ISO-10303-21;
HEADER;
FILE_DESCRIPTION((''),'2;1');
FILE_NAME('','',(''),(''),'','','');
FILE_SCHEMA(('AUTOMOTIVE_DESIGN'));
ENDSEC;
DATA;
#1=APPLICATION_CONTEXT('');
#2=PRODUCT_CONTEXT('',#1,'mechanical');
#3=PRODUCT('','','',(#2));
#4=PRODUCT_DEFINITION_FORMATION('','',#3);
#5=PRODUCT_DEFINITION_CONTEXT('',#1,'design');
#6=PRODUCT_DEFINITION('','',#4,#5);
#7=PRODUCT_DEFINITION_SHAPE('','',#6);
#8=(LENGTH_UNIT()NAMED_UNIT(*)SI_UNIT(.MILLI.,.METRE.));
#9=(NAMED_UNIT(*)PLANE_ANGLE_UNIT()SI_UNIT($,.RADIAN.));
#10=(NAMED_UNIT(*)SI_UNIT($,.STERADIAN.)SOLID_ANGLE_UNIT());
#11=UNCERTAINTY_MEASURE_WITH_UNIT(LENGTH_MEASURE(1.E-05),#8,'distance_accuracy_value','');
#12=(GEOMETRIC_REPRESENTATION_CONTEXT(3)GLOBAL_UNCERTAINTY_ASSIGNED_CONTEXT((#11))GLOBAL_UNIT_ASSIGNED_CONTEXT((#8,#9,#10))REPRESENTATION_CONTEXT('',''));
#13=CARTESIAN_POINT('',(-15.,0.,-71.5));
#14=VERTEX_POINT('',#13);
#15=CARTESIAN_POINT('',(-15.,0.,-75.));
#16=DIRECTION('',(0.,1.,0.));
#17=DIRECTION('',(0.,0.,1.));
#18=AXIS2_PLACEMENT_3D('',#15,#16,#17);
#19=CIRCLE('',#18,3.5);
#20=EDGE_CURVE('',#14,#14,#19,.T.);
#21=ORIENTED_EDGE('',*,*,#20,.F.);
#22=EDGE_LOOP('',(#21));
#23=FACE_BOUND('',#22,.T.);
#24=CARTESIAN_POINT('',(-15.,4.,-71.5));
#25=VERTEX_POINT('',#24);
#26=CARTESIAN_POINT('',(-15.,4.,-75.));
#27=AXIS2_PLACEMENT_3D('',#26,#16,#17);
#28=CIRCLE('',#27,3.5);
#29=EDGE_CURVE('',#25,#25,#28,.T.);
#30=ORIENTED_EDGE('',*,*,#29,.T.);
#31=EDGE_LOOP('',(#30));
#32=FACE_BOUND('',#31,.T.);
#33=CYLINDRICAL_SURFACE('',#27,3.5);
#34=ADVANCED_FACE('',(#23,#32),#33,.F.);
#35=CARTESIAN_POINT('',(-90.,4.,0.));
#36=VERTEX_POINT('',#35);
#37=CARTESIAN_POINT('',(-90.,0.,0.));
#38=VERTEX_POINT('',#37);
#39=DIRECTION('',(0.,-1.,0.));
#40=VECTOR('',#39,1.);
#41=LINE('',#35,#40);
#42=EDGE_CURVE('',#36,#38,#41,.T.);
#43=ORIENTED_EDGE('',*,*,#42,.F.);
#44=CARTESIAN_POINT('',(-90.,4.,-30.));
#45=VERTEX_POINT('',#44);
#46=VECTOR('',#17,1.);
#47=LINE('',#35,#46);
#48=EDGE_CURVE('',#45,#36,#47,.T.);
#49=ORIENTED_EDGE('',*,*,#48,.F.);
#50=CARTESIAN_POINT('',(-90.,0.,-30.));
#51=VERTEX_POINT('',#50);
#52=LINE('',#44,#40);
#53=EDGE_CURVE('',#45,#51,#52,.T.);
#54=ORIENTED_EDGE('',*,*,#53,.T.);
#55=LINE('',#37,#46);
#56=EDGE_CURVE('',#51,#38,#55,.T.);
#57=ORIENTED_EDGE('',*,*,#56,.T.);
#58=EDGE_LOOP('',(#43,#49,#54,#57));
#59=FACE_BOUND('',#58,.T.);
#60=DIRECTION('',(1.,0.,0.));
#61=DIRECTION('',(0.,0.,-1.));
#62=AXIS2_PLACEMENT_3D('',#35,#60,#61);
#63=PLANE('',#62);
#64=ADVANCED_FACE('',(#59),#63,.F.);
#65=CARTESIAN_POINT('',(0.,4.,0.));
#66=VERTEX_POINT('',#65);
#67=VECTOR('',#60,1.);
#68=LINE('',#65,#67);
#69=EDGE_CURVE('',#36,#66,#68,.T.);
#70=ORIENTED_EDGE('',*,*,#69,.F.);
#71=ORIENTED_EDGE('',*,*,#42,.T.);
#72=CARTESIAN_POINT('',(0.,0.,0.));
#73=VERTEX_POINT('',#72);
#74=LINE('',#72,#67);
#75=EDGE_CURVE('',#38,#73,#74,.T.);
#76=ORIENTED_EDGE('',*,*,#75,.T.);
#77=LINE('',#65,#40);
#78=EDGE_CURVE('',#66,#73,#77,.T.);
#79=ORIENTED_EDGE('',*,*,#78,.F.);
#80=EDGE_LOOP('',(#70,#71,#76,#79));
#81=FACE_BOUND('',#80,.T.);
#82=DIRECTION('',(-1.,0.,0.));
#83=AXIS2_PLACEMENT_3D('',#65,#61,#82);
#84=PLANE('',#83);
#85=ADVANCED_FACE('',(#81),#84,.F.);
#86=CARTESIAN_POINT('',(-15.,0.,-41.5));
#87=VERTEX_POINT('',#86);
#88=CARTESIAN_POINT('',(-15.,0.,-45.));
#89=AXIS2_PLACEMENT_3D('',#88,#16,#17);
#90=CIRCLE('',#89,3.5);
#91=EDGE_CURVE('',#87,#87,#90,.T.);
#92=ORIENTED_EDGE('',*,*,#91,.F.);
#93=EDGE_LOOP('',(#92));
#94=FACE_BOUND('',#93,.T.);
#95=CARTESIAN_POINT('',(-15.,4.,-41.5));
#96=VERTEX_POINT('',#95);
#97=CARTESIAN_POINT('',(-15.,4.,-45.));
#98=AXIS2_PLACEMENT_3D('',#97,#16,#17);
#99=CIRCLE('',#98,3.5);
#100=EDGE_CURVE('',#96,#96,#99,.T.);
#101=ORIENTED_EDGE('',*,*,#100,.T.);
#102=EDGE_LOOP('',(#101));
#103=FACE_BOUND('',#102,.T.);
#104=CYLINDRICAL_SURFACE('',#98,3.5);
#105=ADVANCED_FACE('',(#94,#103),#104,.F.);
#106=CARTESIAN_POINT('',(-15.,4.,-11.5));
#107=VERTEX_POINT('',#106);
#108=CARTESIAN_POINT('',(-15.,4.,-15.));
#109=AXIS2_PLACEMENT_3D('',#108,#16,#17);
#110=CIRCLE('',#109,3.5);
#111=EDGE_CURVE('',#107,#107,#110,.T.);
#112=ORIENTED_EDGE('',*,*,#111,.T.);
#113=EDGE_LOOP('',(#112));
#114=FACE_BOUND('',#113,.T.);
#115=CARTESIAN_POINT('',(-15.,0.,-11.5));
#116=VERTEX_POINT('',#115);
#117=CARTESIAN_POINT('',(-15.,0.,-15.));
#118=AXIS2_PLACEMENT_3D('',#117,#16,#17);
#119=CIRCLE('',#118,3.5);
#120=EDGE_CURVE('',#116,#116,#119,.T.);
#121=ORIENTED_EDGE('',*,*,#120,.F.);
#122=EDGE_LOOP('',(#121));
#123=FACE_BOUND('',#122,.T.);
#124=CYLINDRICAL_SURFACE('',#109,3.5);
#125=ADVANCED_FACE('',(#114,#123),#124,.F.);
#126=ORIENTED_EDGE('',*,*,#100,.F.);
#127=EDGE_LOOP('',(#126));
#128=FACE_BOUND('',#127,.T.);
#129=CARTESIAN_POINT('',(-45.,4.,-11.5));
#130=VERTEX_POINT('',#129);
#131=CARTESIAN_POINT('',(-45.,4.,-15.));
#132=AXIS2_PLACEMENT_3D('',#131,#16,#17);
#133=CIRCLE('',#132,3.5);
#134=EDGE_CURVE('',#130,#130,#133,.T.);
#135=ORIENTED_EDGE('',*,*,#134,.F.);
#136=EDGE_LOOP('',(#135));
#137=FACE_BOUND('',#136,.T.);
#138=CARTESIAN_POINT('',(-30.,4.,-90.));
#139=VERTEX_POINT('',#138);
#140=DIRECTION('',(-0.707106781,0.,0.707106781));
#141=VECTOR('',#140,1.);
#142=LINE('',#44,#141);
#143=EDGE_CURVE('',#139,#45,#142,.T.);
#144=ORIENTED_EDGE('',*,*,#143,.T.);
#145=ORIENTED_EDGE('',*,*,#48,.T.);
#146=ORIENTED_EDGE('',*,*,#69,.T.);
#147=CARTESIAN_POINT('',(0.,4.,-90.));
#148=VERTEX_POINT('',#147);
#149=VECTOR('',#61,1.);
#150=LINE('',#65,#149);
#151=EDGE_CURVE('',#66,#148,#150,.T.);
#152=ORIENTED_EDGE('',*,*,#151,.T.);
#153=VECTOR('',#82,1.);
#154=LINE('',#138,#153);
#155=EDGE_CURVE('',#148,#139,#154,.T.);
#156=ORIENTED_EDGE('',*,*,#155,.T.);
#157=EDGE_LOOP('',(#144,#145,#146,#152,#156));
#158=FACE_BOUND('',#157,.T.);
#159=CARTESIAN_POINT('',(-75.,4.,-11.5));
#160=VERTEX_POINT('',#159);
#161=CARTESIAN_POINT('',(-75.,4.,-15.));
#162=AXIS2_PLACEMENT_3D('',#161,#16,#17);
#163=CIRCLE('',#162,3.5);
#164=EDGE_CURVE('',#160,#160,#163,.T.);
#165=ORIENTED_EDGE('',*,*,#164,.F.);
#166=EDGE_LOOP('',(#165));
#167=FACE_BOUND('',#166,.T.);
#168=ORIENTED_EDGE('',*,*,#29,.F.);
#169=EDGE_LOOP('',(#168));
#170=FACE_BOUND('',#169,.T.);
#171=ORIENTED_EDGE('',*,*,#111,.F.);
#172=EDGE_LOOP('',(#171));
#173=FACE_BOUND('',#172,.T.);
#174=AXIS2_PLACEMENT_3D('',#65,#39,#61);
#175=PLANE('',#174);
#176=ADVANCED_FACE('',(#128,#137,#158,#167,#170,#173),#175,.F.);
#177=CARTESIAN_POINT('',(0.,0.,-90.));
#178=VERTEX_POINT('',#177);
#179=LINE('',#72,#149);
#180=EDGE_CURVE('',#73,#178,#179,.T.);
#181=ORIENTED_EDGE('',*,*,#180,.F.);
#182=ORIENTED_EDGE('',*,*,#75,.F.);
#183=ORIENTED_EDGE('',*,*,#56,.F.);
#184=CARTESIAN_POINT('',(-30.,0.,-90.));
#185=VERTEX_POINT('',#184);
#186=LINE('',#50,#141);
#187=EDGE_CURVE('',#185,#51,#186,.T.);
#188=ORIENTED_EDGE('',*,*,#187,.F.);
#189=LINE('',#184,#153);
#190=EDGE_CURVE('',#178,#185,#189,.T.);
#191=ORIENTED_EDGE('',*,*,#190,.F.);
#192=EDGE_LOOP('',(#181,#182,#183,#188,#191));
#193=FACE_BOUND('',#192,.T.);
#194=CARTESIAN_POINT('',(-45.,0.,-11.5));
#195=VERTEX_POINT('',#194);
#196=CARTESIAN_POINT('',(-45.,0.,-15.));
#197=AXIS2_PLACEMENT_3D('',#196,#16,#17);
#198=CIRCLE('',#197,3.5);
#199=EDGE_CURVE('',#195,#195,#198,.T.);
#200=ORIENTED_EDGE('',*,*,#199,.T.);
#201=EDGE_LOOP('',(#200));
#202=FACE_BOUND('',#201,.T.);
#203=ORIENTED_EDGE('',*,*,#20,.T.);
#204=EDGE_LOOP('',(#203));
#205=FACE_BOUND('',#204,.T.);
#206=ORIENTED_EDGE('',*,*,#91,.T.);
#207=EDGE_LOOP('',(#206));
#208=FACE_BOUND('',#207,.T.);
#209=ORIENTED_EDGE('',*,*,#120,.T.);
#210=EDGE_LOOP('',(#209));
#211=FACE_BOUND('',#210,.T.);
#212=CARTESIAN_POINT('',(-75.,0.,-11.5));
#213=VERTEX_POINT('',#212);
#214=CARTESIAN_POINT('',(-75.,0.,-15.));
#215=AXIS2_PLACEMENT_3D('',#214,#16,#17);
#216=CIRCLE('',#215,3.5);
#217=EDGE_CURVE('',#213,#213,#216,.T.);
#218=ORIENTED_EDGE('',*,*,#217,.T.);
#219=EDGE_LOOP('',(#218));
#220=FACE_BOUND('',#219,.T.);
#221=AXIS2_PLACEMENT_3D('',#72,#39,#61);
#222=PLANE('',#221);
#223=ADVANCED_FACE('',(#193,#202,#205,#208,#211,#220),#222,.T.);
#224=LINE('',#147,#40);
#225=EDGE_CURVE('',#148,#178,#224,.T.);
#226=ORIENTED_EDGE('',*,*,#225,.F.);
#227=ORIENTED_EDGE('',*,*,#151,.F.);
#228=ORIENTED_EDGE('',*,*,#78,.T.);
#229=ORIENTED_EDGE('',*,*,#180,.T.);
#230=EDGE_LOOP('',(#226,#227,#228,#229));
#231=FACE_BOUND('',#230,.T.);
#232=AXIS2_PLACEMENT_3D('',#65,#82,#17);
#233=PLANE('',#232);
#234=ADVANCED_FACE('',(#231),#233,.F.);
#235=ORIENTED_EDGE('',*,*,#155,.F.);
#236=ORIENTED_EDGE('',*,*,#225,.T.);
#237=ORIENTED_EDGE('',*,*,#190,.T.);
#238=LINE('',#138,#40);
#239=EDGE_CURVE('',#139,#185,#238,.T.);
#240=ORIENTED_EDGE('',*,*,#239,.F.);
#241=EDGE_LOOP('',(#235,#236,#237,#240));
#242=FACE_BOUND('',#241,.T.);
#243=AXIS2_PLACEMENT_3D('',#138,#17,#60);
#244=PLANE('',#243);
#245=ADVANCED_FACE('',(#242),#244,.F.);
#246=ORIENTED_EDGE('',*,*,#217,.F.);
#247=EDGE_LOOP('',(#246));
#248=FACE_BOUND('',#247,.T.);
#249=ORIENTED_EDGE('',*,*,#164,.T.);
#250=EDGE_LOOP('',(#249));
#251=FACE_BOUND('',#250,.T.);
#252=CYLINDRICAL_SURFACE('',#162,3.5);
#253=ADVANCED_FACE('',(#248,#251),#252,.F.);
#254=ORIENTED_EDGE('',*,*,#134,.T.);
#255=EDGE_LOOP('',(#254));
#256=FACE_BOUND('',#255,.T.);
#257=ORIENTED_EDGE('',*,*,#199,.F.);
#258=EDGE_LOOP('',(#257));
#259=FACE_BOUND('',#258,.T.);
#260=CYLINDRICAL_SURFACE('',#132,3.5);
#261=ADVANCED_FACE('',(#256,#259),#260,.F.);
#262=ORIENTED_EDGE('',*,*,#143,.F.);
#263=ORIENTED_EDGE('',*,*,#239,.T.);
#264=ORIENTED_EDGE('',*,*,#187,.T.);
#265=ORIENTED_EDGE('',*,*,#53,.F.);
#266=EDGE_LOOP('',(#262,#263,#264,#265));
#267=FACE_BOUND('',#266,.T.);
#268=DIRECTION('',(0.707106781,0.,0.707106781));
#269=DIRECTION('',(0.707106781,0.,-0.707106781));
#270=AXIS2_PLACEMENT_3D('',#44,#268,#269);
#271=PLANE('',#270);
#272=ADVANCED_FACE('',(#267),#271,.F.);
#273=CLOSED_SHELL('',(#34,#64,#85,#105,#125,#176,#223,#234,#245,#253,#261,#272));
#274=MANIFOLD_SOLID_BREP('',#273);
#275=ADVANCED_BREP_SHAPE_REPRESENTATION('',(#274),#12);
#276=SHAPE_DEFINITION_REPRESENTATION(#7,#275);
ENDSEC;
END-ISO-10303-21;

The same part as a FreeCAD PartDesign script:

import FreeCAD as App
import Part
import Sketcher
from FreeCAD import Vector
Q = App.Units.Quantity


def add_polygon(sketch, points):
    """Adds a closed chain of lines whose ends are joined by coincident constraints."""
    first, n = sketch.GeometryCount, len(points)
    for a, b in zip(points, points[1:] + points[:1]):
        sketch.addGeometry(Part.LineSegment(App.Vector(*a, 0), App.Vector(*b, 0)), False)
    for i in range(n):
        sketch.addConstraint(Sketcher.Constraint("Coincident", first + i, 2, first + (i + 1) % n, 1))

doc = App.newDocument("Part")
body = doc.addObject("PartDesign::Body", "Body")

sketch1 = body.newObject("Sketcher::SketchObject", "Sketch")
sketch1.AttachmentSupport = (doc.getObject("XZ_Plane"), [""])
sketch1.MapMode = "FlatFace"
add_polygon(sketch1, [(-90, 0), (0, 0), (0, -90), (-30, -90), (-90, -30)])
sketch1.addConstraint([
    Sketcher.Constraint("Horizontal", 0),
    Sketcher.Constraint("Vertical", 1),
    Sketcher.Constraint("Horizontal", 2),
    Sketcher.Constraint("Vertical", 4),
    Sketcher.Constraint("Coincident", 0, 2, -1, 1),
    Sketcher.Constraint("Equal", 0, 1),
    Sketcher.Constraint("Equal", 2, 4),
    Sketcher.Constraint("DistanceX", 0, 1, 0, 2, Q("90 mm")),
    Sketcher.Constraint("DistanceX", 2, 2, 2, 1, Q("30 mm")),
])
pad1 = body.newObject("PartDesign::Pad", "Pad")
pad1.Profile = sketch1
pad1.Length = 4
pad1.Reversed = True

sketch2 = body.newObject("Sketcher::SketchObject", "Sketch001")
sketch2.AttachmentSupport = (doc.getObject("XZ_Plane"), [""])
sketch2.MapMode = "FlatFace"
sketch2.AttachmentOffset = App.Placement(Vector(0, 0, -4), App.Rotation())
sketch2.addGeometry([
    Part.Circle(Vector(-75, -15, 0), Vector(0, 0, 1), 3.5),
    Part.Circle(Vector(-45, -15, 0), Vector(0, 0, 1), 3.5),
    Part.Circle(Vector(-15, -15, 0), Vector(0, 0, 1), 3.5),
    Part.Circle(Vector(-15, -45, 0), Vector(0, 0, 1), 3.5),
    Part.Circle(Vector(-15, -75, 0), Vector(0, 0, 1), 3.5),
], False)
sketch2.addConstraint([
    Sketcher.Constraint("Equal", 0, 1),
    Sketcher.Constraint("Equal", 1, 2),
    Sketcher.Constraint("Equal", 2, 3),
    Sketcher.Constraint("Equal", 3, 4),
    Sketcher.Constraint("Horizontal", 0, 3, 1, 3),
    Sketcher.Constraint("Horizontal", 1, 3, 2, 3),
    Sketcher.Constraint("Vertical", 2, 3, 3, 3),
    Sketcher.Constraint("Vertical", 3, 3, 4, 3),
    Sketcher.Constraint("Diameter", 0, Q("7 mm")),
    Sketcher.Constraint("DistanceX", 0, 3, -1, 1, Q("75 mm")),
    Sketcher.Constraint("DistanceY", 0, 3, -1, 1, Q("15 mm")),
    Sketcher.Constraint("DistanceX", 1, 3, -1, 1, Q("45 mm")),
    Sketcher.Constraint("DistanceX", 2, 3, -1, 1, Q("15 mm")),
    Sketcher.Constraint("DistanceY", 3, 3, -1, 1, Q("45 mm")),
    Sketcher.Constraint("DistanceY", 4, 3, -1, 1, Q("75 mm")),
])
doc.recompute()
hole = body.newObject("PartDesign::Hole", "Hole")
hole.Profile = sketch2
hole.ThreadType = "None"
hole.Diameter = 7
hole.DepthType = "ThroughAll"
hole.Reversed = True

doc.recompute()
